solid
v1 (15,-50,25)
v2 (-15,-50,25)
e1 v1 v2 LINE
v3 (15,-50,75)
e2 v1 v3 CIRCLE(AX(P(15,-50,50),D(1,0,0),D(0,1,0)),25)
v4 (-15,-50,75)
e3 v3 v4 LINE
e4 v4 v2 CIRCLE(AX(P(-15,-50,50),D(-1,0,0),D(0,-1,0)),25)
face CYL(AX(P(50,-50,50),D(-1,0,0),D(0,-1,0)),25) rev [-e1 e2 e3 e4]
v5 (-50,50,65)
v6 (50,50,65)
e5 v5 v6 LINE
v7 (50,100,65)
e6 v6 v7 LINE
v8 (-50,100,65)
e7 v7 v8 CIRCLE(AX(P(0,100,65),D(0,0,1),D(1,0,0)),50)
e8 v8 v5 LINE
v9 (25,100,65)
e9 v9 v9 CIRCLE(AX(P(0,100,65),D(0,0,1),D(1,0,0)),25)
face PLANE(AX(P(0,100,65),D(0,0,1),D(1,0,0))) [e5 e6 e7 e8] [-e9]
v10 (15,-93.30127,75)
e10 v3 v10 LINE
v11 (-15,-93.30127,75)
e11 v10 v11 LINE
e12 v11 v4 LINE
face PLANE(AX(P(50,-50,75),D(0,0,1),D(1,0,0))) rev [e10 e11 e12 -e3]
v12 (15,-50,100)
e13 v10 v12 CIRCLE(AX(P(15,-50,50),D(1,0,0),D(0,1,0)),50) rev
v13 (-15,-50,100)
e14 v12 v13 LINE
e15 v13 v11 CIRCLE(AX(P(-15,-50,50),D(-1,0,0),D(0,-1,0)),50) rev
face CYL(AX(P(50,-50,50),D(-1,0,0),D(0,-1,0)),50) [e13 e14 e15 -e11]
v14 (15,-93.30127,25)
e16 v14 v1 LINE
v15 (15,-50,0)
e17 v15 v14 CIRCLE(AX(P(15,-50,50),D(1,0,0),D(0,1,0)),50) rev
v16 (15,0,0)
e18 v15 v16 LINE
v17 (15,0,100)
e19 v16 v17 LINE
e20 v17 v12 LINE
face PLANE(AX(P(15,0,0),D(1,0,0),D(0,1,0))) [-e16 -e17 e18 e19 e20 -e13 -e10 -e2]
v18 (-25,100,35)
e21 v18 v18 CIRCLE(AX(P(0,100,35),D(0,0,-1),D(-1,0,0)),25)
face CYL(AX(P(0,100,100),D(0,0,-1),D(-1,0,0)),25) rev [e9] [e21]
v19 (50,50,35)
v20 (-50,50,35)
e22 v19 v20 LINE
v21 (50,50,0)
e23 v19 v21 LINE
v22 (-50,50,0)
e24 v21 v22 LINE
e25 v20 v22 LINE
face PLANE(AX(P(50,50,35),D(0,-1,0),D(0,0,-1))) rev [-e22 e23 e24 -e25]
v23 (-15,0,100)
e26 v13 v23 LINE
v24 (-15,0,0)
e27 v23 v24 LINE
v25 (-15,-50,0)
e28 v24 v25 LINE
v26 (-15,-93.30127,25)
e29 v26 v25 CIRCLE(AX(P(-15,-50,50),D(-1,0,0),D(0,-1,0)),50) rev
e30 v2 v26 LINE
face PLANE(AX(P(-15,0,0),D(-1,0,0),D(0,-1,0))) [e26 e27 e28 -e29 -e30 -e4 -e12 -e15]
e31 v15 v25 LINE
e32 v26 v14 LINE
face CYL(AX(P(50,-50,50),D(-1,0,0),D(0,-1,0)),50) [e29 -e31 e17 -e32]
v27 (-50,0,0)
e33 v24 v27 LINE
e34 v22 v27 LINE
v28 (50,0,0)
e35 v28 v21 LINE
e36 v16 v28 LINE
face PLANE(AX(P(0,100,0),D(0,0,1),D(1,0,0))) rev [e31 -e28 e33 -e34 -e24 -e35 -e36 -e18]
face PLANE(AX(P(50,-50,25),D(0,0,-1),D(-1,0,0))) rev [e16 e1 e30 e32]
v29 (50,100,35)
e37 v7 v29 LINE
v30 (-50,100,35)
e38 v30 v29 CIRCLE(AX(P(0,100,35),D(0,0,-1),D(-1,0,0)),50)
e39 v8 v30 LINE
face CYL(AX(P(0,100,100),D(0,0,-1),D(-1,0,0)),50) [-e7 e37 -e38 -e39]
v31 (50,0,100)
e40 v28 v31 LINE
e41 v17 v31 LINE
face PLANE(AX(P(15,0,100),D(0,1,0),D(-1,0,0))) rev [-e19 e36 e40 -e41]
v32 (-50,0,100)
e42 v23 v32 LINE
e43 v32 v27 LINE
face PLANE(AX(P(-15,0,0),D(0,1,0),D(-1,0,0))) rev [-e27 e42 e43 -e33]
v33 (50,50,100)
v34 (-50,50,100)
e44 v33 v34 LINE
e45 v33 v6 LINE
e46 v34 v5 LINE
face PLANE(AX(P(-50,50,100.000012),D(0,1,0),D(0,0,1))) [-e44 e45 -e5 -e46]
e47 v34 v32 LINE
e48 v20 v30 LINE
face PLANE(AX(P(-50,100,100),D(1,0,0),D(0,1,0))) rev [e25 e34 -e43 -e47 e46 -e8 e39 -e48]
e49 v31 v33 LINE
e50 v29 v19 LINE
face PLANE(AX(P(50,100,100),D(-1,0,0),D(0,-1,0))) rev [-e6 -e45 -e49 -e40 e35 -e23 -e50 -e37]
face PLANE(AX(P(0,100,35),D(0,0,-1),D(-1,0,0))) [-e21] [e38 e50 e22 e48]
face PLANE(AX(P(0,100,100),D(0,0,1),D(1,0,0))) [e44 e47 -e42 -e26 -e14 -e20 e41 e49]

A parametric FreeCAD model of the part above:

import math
import FreeCAD as App
import Part
import Sketcher

V = App.Vector
Q = App.Units.Quantity

doc = App.newDocument("Part")
body = doc.addObject("PartDesign::Body", "Body")

sketch1 = body.newObject("Sketcher::SketchObject", "Sketch")
sketch1.AttachmentSupport = (doc.getObject("XY_Plane"), [""])
sketch1.MapMode = "FlatFace"
sketch1.addGeometry([
    Part.LineSegment(V(-50, 100, 0), V(-50, -100, 0)),
    Part.LineSegment(V(-50, -100, 0), V(50, -100, 0)),
    Part.LineSegment(V(50, -100, 0), V(50, 100, 0)),
    Part.ArcOfCircle(Part.Circle(V(0, 100, 0), V(0, 0, 1), 50), math.radians(0), math.radians(180)),
], False)
sketch1.addConstraint([
    Sketcher.Constraint("Coincident", 0, 2, 1, 1),
    Sketcher.Constraint("Coincident", 1, 2, 2, 1),
    Sketcher.Constraint("Tangent", 2, 2, 3, 1),
    Sketcher.Constraint("Tangent", 3, 2, 0, 1),
    Sketcher.Constraint("Vertical", 0),
    Sketcher.Constraint("Horizontal", 1),
    Sketcher.Constraint("Vertical", 2),
    Sketcher.Constraint("Symmetric", 0, 2, 2, 2, -1, 1),
    Sketcher.Constraint("Radius", 3, Q("50 mm")),
    Sketcher.Constraint("DistanceY", 0, 2, 0, 1, Q("200 mm")),
])
pad1 = body.newObject("PartDesign::Pad", "Pad")
pad1.Profile = sketch1
pad1.Length = 100

sketch2 = body.newObject("Sketcher::SketchObject", "Sketch001")
sketch2.AttachmentSupport = (doc.getObject("XY_Plane"), [""])
sketch2.MapMode = "FlatFace"
sketch2.AttachmentOffset = App.Placement(V(0, 0, 100), App.Rotation())
sketch2.addGeometry([
    Part.LineSegment(V(-50, 100, 0), V(-50, 50, 0)),
    Part.LineSegment(V(-50, 50, 0), V(50, 50, 0)),
    Part.LineSegment(V(50, 50, 0), V(50, 100, 0)),
    Part.ArcOfCircle(Part.Circle(V(0, 100, 0), V(0, 0, 1), 50), math.radians(0), math.radians(180)),
], False)
sketch2.addConstraint([
    Sketcher.Constraint("Coincident", 0, 2, 1, 1),
    Sketcher.Constraint("Coincident", 1, 2, 2, 1),
    Sketcher.Constraint("Tangent", 2, 2, 3, 1),
    Sketcher.Constraint("Tangent", 3, 2, 0, 1),
    Sketcher.Constraint("Vertical", 0),
    Sketcher.Constraint("Horizontal", 1),
    Sketcher.Constraint("Vertical", 2),
    Sketcher.Constraint("PointOnObject", 3, 3, -2),
    Sketcher.Constraint("Radius", 3, Q("50 mm")),
    Sketcher.Constraint("DistanceY", 0, 2, 0, 1, Q("50 mm")),
    Sketcher.Constraint("DistanceY", -1, 1, 3, 3, Q("100 mm")),
])
pocket1 = body.newObject("PartDesign::Pocket", "Pocket")
pocket1.Profile = sketch2
pocket1.Type = "TwoLengths"
pocket1.Length = 1
pocket1.Length2 = 35
pocket1.Reversed = True

sketch3 = body.newObject("Sketcher::SketchObject", "Sketch002")
sketch3.AttachmentSupport = (doc.getObject("XY_Plane"), [""])
sketch3.MapMode = "FlatFace"
sketch3.addGeometry([
    Part.LineSegment(V(50, 100, 0), V(50, 50, 0)),
    Part.LineSegment(V(50, 50, 0), V(-50, 50, 0)),
    Part.LineSegment(V(-50, 50, 0), V(-50, 100, 0)),
    Part.ArcOfCircle(Part.Circle(V(0, 100, 0), V(0, 0, 1), 50), math.radians(0), math.radians(180)),
], False)
sketch3.addConstraint([
    Sketcher.Constraint("Coincident", 0, 2, 1, 1),
    Sketcher.Constraint("Coincident", 1, 2, 2, 1),
    Sketcher.Constraint("Tangent", 2, 2, 3, 2),
    Sketcher.Constraint("Tangent", 3, 1, 0, 1),
    Sketcher.Constraint("Vertical", 0),
    Sketcher.Constraint("Horizontal", 1),
    Sketcher.Constraint("Vertical", 2),
    Sketcher.Constraint("PointOnObject", 3, 3, -2),
    Sketcher.Constraint("Radius", 3, Q("50 mm")),
    Sketcher.Constraint("DistanceY", 0, 2, 0, 1, Q("50 mm")),
    Sketcher.Constraint("DistanceY", -1, 1, 3, 3, Q("100 mm")),
])
pocket2 = body.newObject("PartDesign::Pocket", "Pocket001")
pocket2.Profile = sketch3
pocket2.Length = 35
pocket2.Reversed = True

sketch4 = body.newObject("Sketcher::SketchObject", "Sketch003")
sketch4.AttachmentSupport = (doc.getObject("XY_Plane"), [""])
sketch4.MapMode = "FlatFace"
sketch4.AttachmentOffset = App.Placement(V(0, 0, 35), App.Rotation())
sketch4.addGeometry(Part.Circle(V(0, 100, 0), V(0, 0, 1), 25), False)
sketch4.addConstraint([
    Sketcher.Constraint("PointOnObject", 0, 3, -2),
    Sketcher.Constraint("Diameter", 0, Q("50 mm")),
    Sketcher.Constraint("DistanceY", -1, 1, 0, 3, Q("100 mm")),
])
pocket3 = body.newObject("PartDesign::Pocket", "Pocket002")
pocket3.Profile = sketch4
pocket3.Type = "ThroughAll"
pocket3.Midplane = True

sketch5 = body.newObject("Sketcher::SketchObject", "Sketch004")
sketch5.AttachmentSupport = (doc.getObject("YZ_Plane"), [""])
sketch5.MapMode = "FlatFace"
sketch5.AttachmentOffset = App.Placement(V(0, 0, -50), App.Rotation())
sketch5.addGeometry([
    Part.LineSegment(V(0, 0, 0), V(-100, 0, 0)),
    Part.LineSegment(V(-100, 0, 0), V(-100, 100, 0)),
    Part.LineSegment(V(-100, 100, 0), V(0, 100, 0)),
    Part.LineSegment(V(0, 100, 0), V(0, 0, 0)),
], False)
sketch5.addConstraint([
    Sketcher.Constraint("Coincident", 0, 2, 1, 1),
    Sketcher.Constraint("Coincident", 1, 2, 2, 1),
    Sketcher.Constraint("Coincident", 2, 2, 3, 1),
    Sketcher.Constraint("Coincident", 3, 2, 0, 1),
    Sketcher.Constraint("Horizontal", 0),
    Sketcher.Constraint("Vertical", 1),
    Sketcher.Constraint("Horizontal", 2),
    Sketcher.Constraint("Vertical", 3),
    Sketcher.Constraint("Coincident", 3, 2, -1, 1),
    Sketcher.Constraint("Equal", 2, 1),
    Sketcher.Constraint("DistanceX", 0, 2, 0, 1, Q("100 mm")),
])
pocket4 = body.newObject("PartDesign::Pocket", "Pocket003")
pocket4.Profile = sketch5
pocket4.Type = "ThroughAll"
pocket4.Midplane = True

sketch6 = body.newObject("Sketcher::SketchObject", "Sketch005")
sketch6.AttachmentSupport = (doc.getObject("YZ_Plane"), [""])
sketch6.MapMode = "FlatFace"
sketch6.AttachmentOffset = App.Placement(V(0, 0, -50), App.Rotation())
sketch6.addGeometry([
    Part.LineSegment(V(0, 100, 0), V(0, 0, 0)),
    Part.LineSegment(V(0, 0, 0), V(-50, 0, 0)),
    Part.ArcOfCircle(Part.Circle(V(-50, 50, 0), V(0, 0, 1), 50), math.radians(90), math.radians(270)),
    Part.LineSegment(V(-50, 100, 0), V(0, 100, 0)),
], False)
sketch6.addConstraint([
    Sketcher.Constraint("Coincident", 0, 2, 1, 1),
    Sketcher.Constraint("Tangent", 1, 2, 2, 2),
    Sketcher.Constraint("Tangent", 2, 1, 3, 1),
    Sketcher.Constraint("Coincident", 3, 2, 0, 1),
    Sketcher.Constraint("Vertical", 0),
    Sketcher.Constraint("Horizontal", 1),
    Sketcher.Constraint("Horizontal", 3),
    Sketcher.Constraint("Coincident", 0, 2, -1, 1),
    Sketcher.Constraint("Radius", 2, Q("50 mm")),
    Sketcher.Constraint("DistanceX", 1, 2, 1, 1, Q("50 mm")),
])
pad2 = body.newObject("PartDesign::Pad", "Pad001")
pad2.Profile = sketch6
pad2.Length = 100

sketch7 = body.newObject("Sketcher::SketchObject", "Sketch006")
sketch7.AttachmentSupport = (doc.getObject("YZ_Plane"), [""])
sketch7.MapMode = "FlatFace"
sketch7.AttachmentOffset = App.Placement(V(0, 0, -50), App.Rotation())
sketch7.addGeometry([
    Part.LineSegment(V(0, 0, 0), V(-100, 0, 0)),
    Part.LineSegment(V(-100, 0, 0), V(-100, 100, 0)),
    Part.LineSegment(V(-100, 100, 0), V(0, 100, 0)),
    Part.LineSegment(V(0, 100, 0), V(0, 0, 0)),
], False)
sketch7.addConstraint([
    Sketcher.Constraint("Coincident", 0, 2, 1, 1),
    Sketcher.Constraint("Coincident", 1, 2, 2, 1),
    Sketcher.Constraint("Coincident", 2, 2, 3, 1),
    Sketcher.Constraint("Coincident", 3, 2, 0, 1),
    Sketcher.Constraint("Horizontal", 0),
    Sketcher.Constraint("Vertical", 1),
    Sketcher.Constraint("Horizontal", 2),
    Sketcher.Constraint("Vertical", 3),
    Sketcher.Constraint("Coincident", 3, 2, -1, 1),
    Sketcher.Constraint("Equal", 2, 1),
    Sketcher.Constraint("DistanceX", 0, 2, 0, 1, Q("100 mm")),
])
pocket5 = body.newObject("PartDesign::Pocket", "Pocket004")
pocket5.Profile = sketch7
pocket5.Length = 35
pocket5.Reversed = True

sketch8 = body.newObject("Sketcher::SketchObject", "Sketch007")
sketch8.AttachmentSupport = (doc.getObject("YZ_Plane"), [""])
sketch8.MapMode = "FlatFace"
sketch8.AttachmentOffset = App.Placement(V(0, 0, 50), App.Rotation())
sketch8.addGeometry([
    Part.LineSegment(V(0, 100, 0), V(-100, 100, 0)),
    Part.LineSegment(V(-100, 100, 0), V(-100, 0, 0)),
    Part.LineSegment(V(-100, 0, 0), V(0, 0, 0)),
    Part.LineSegment(V(0, 0, 0), V(0, 100, 0)),
], False)
sketch8.addConstraint([
    Sketcher.Constraint("Coincident", 0, 2, 1, 1),
    Sketcher.Constraint("Coincident", 1, 2, 2, 1),
    Sketcher.Constraint("Coincident", 2, 2, 3, 1),
    Sketcher.Constraint("Coincident", 3, 2, 0, 1),
    Sketcher.Constraint("Horizontal", 0),
    Sketcher.Constraint("Vertical", 1),
    Sketcher.Constraint("Horizontal", 2),
    Sketcher.Constraint("Vertical", 3),
    Sketcher.Constraint("Coincident", 2, 2, -1, 1),
    Sketcher.Constraint("Equal", 2, 1),
    Sketcher.Constraint("DistanceX", 0, 2, 0, 1, Q("100 mm")),
])
pocket6 = body.newObject("PartDesign::Pocket", "Pocket005")
pocket6.Profile = sketch8
pocket6.Length = 35

sketch9 = body.newObject("Sketcher::SketchObject", "Sketch008")
sketch9.AttachmentSupport = (doc.getObject("YZ_Plane"), [""])
sketch9.MapMode = "FlatFace"
sketch9.AttachmentOffset = App.Placement(V(0, 0, -15), App.Rotation())
sketch9.addGeometry([
    Part.LineSegment(V(-50, 25, 0), V(-110.428803, 25, 0)),
    Part.LineSegment(V(-110.428803, 25, 0), V(-110.428803, 75, 0)),
    Part.LineSegment(V(-110.428803, 75, 0), V(-50, 75, 0)),
    Part.ArcOfCircle(Part.Circle(V(-50, 50, 0), V(0, 0, 1), 25), math.radians(-90), math.radians(90)),
], False)
sketch9.addConstraint([
    Sketcher.Constraint("Coincident", 0, 2, 1, 1),
    Sketcher.Constraint("Coincident", 1, 2, 2, 1),
    Sketcher.Constraint("Tangent", 2, 2, 3, 2),
    Sketcher.Constraint("Tangent", 3, 1, 0, 1),
    Sketcher.Constraint("Horizontal", 0),
    Sketcher.Constraint("Vertical", 1),
    Sketcher.Constraint("Horizontal", 2),
    Sketcher.Constraint("Radius", 3, Q("25 mm")),
    Sketcher.Constraint("DistanceX", 3, 3, -1, 1, Q("50 mm")),
    Sketcher.Constraint("DistanceY", -1, 1, 3, 3, Q("50 mm")),
    Sketcher.Constraint("DistanceX", 0, 2, 0, 1, Q("60.428803 mm")),
])
pocket7 = body.newObject("PartDesign::Pocket", "Pocket006")
pocket7.Profile = sketch9
pocket7.Type = "ThroughAll"
pocket7.Midplane = True

doc.recompute()
